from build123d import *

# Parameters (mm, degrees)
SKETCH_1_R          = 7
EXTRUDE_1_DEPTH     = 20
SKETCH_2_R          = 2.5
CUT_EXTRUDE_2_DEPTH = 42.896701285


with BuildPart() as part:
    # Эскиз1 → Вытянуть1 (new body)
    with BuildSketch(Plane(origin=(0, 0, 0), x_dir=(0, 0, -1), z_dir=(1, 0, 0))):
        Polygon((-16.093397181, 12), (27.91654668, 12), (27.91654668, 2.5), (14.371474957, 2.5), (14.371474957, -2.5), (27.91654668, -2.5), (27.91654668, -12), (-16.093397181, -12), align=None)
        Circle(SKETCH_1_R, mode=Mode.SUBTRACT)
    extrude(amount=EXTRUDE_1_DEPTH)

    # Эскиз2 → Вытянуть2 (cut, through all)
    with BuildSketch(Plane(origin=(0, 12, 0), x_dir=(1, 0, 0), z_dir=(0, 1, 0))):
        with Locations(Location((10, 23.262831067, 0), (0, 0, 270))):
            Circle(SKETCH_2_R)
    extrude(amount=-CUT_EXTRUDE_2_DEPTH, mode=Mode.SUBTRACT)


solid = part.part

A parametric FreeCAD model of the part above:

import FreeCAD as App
import Part
import Sketcher
from FreeCAD import Vector
Q = App.Units.Quantity


def add_polygon(sketch, points):
    """Adds a closed chain of lines whose ends are joined by coincident constraints."""
    first, n = sketch.GeometryCount, len(points)
    for a, b in zip(points, points[1:] + points[:1]):
        sketch.addGeometry(Part.LineSegment(App.Vector(*a, 0), App.Vector(*b, 0)), False)
    for i in range(n):
        sketch.addConstraint(Sketcher.Constraint("Coincident", first + i, 2, first + (i + 1) % n, 1))

doc = App.newDocument("Part")
body = doc.addObject("PartDesign::Body", "Body")

# Sketch on YZ plane
sketch1 = doc.addObject("Sketcher::SketchObject", "Sketch")
body.addObject(sketch1)
sketch1.AttachmentSupport = (doc.YZ_Plane, [""])
sketch1.MapMode = "FlatFace"
add_polygon(sketch1, [(12, -27.916547), (12, 16.093397), (-12, 16.093397), (-12, -27.916547), (-2.5, -27.916547), (-2.5, -14.371475), (2.5, -14.371475), (2.5, -27.916547)])  # lines 0-7
sketch1.addGeometry(Part.Circle(Vector(0, 0, 0), Vector(0, 0, 1), 7), False)  # 8
sketch1.addConstraint(Sketcher.Constraint("Vertical", 0))
sketch1.addConstraint(Sketcher.Constraint("Horizontal", 1))
sketch1.addConstraint(Sketcher.Constraint("Vertical", 2))
sketch1.addConstraint(Sketcher.Constraint("Horizontal", 3))
sketch1.addConstraint(Sketcher.Constraint("Vertical", 4))
sketch1.addConstraint(Sketcher.Constraint("Horizontal", 5))
sketch1.addConstraint(Sketcher.Constraint("Vertical", 6))
sketch1.addConstraint(Sketcher.Constraint("Horizontal", 7))
sketch1.addConstraint(Sketcher.Constraint("Coincident", 8, 3, -1, 1))
sketch1.addConstraint(Sketcher.Constraint("Symmetric", 3, 2, 6, 2, -2))
sketch1.addConstraint(Sketcher.Constraint("Equal", 3, 7))
sketch1.addConstraint(Sketcher.Constraint("Diameter", 8, Q("14 mm")))
sketch1.addConstraint(Sketcher.Constraint("DistanceX", 1, 2, 1, 1, Q("24 mm")))
sketch1.addConstraint(Sketcher.Constraint("DistanceX", 5, 1, 5, 2, Q("5 mm")))
sketch1.addConstraint(Sketcher.Constraint("DistanceY", 4, 1, 4, 2, Q("13.545072 mm")))
sketch1.addConstraint(Sketcher.Constraint("DistanceY", 0, 1, 0, 2, Q("44.009944 mm")))
sketch1.addConstraint(Sketcher.Constraint("DistanceY", -1, 1, 0, 2, Q("16.093397 mm")))
pad1 = doc.addObject("PartDesign::Pad", "Pad")
body.addObject(pad1)
pad1.Profile = sketch1
pad1.Length = 20

# Sketch on XZ plane
sketch2 = doc.addObject("Sketcher::SketchObject", "Sketch001")
body.addObject(sketch2)
sketch2.AttachmentSupport = (doc.XZ_Plane, [""])
sketch2.MapMode = "FlatFace"
sketch2.AttachmentOffset = App.Placement(Vector(0, 0, -12), App.Rotation())
sketch2.addGeometry(Part.Circle(Vector(10, -23.262831, 0), Vector(0, 0, 1), 2.5), False)
sketch2.addConstraint(Sketcher.Constraint("Diameter", 0, Q("5 mm")))
sketch2.addConstraint(Sketcher.Constraint("DistanceX", -1, 1, 0, 3, Q("10 mm")))
sketch2.addConstraint(Sketcher.Constraint("DistanceY", 0, 3, -1, 1, Q("23.262831 mm")))
pocket1 = doc.addObject("PartDesign::Pocket", "Pocket")
body.addObject(pocket1)
pocket1.Profile = sketch2
pocket1.Type = "ThroughAll"
pocket1.Reversed = True

doc.recompute()
